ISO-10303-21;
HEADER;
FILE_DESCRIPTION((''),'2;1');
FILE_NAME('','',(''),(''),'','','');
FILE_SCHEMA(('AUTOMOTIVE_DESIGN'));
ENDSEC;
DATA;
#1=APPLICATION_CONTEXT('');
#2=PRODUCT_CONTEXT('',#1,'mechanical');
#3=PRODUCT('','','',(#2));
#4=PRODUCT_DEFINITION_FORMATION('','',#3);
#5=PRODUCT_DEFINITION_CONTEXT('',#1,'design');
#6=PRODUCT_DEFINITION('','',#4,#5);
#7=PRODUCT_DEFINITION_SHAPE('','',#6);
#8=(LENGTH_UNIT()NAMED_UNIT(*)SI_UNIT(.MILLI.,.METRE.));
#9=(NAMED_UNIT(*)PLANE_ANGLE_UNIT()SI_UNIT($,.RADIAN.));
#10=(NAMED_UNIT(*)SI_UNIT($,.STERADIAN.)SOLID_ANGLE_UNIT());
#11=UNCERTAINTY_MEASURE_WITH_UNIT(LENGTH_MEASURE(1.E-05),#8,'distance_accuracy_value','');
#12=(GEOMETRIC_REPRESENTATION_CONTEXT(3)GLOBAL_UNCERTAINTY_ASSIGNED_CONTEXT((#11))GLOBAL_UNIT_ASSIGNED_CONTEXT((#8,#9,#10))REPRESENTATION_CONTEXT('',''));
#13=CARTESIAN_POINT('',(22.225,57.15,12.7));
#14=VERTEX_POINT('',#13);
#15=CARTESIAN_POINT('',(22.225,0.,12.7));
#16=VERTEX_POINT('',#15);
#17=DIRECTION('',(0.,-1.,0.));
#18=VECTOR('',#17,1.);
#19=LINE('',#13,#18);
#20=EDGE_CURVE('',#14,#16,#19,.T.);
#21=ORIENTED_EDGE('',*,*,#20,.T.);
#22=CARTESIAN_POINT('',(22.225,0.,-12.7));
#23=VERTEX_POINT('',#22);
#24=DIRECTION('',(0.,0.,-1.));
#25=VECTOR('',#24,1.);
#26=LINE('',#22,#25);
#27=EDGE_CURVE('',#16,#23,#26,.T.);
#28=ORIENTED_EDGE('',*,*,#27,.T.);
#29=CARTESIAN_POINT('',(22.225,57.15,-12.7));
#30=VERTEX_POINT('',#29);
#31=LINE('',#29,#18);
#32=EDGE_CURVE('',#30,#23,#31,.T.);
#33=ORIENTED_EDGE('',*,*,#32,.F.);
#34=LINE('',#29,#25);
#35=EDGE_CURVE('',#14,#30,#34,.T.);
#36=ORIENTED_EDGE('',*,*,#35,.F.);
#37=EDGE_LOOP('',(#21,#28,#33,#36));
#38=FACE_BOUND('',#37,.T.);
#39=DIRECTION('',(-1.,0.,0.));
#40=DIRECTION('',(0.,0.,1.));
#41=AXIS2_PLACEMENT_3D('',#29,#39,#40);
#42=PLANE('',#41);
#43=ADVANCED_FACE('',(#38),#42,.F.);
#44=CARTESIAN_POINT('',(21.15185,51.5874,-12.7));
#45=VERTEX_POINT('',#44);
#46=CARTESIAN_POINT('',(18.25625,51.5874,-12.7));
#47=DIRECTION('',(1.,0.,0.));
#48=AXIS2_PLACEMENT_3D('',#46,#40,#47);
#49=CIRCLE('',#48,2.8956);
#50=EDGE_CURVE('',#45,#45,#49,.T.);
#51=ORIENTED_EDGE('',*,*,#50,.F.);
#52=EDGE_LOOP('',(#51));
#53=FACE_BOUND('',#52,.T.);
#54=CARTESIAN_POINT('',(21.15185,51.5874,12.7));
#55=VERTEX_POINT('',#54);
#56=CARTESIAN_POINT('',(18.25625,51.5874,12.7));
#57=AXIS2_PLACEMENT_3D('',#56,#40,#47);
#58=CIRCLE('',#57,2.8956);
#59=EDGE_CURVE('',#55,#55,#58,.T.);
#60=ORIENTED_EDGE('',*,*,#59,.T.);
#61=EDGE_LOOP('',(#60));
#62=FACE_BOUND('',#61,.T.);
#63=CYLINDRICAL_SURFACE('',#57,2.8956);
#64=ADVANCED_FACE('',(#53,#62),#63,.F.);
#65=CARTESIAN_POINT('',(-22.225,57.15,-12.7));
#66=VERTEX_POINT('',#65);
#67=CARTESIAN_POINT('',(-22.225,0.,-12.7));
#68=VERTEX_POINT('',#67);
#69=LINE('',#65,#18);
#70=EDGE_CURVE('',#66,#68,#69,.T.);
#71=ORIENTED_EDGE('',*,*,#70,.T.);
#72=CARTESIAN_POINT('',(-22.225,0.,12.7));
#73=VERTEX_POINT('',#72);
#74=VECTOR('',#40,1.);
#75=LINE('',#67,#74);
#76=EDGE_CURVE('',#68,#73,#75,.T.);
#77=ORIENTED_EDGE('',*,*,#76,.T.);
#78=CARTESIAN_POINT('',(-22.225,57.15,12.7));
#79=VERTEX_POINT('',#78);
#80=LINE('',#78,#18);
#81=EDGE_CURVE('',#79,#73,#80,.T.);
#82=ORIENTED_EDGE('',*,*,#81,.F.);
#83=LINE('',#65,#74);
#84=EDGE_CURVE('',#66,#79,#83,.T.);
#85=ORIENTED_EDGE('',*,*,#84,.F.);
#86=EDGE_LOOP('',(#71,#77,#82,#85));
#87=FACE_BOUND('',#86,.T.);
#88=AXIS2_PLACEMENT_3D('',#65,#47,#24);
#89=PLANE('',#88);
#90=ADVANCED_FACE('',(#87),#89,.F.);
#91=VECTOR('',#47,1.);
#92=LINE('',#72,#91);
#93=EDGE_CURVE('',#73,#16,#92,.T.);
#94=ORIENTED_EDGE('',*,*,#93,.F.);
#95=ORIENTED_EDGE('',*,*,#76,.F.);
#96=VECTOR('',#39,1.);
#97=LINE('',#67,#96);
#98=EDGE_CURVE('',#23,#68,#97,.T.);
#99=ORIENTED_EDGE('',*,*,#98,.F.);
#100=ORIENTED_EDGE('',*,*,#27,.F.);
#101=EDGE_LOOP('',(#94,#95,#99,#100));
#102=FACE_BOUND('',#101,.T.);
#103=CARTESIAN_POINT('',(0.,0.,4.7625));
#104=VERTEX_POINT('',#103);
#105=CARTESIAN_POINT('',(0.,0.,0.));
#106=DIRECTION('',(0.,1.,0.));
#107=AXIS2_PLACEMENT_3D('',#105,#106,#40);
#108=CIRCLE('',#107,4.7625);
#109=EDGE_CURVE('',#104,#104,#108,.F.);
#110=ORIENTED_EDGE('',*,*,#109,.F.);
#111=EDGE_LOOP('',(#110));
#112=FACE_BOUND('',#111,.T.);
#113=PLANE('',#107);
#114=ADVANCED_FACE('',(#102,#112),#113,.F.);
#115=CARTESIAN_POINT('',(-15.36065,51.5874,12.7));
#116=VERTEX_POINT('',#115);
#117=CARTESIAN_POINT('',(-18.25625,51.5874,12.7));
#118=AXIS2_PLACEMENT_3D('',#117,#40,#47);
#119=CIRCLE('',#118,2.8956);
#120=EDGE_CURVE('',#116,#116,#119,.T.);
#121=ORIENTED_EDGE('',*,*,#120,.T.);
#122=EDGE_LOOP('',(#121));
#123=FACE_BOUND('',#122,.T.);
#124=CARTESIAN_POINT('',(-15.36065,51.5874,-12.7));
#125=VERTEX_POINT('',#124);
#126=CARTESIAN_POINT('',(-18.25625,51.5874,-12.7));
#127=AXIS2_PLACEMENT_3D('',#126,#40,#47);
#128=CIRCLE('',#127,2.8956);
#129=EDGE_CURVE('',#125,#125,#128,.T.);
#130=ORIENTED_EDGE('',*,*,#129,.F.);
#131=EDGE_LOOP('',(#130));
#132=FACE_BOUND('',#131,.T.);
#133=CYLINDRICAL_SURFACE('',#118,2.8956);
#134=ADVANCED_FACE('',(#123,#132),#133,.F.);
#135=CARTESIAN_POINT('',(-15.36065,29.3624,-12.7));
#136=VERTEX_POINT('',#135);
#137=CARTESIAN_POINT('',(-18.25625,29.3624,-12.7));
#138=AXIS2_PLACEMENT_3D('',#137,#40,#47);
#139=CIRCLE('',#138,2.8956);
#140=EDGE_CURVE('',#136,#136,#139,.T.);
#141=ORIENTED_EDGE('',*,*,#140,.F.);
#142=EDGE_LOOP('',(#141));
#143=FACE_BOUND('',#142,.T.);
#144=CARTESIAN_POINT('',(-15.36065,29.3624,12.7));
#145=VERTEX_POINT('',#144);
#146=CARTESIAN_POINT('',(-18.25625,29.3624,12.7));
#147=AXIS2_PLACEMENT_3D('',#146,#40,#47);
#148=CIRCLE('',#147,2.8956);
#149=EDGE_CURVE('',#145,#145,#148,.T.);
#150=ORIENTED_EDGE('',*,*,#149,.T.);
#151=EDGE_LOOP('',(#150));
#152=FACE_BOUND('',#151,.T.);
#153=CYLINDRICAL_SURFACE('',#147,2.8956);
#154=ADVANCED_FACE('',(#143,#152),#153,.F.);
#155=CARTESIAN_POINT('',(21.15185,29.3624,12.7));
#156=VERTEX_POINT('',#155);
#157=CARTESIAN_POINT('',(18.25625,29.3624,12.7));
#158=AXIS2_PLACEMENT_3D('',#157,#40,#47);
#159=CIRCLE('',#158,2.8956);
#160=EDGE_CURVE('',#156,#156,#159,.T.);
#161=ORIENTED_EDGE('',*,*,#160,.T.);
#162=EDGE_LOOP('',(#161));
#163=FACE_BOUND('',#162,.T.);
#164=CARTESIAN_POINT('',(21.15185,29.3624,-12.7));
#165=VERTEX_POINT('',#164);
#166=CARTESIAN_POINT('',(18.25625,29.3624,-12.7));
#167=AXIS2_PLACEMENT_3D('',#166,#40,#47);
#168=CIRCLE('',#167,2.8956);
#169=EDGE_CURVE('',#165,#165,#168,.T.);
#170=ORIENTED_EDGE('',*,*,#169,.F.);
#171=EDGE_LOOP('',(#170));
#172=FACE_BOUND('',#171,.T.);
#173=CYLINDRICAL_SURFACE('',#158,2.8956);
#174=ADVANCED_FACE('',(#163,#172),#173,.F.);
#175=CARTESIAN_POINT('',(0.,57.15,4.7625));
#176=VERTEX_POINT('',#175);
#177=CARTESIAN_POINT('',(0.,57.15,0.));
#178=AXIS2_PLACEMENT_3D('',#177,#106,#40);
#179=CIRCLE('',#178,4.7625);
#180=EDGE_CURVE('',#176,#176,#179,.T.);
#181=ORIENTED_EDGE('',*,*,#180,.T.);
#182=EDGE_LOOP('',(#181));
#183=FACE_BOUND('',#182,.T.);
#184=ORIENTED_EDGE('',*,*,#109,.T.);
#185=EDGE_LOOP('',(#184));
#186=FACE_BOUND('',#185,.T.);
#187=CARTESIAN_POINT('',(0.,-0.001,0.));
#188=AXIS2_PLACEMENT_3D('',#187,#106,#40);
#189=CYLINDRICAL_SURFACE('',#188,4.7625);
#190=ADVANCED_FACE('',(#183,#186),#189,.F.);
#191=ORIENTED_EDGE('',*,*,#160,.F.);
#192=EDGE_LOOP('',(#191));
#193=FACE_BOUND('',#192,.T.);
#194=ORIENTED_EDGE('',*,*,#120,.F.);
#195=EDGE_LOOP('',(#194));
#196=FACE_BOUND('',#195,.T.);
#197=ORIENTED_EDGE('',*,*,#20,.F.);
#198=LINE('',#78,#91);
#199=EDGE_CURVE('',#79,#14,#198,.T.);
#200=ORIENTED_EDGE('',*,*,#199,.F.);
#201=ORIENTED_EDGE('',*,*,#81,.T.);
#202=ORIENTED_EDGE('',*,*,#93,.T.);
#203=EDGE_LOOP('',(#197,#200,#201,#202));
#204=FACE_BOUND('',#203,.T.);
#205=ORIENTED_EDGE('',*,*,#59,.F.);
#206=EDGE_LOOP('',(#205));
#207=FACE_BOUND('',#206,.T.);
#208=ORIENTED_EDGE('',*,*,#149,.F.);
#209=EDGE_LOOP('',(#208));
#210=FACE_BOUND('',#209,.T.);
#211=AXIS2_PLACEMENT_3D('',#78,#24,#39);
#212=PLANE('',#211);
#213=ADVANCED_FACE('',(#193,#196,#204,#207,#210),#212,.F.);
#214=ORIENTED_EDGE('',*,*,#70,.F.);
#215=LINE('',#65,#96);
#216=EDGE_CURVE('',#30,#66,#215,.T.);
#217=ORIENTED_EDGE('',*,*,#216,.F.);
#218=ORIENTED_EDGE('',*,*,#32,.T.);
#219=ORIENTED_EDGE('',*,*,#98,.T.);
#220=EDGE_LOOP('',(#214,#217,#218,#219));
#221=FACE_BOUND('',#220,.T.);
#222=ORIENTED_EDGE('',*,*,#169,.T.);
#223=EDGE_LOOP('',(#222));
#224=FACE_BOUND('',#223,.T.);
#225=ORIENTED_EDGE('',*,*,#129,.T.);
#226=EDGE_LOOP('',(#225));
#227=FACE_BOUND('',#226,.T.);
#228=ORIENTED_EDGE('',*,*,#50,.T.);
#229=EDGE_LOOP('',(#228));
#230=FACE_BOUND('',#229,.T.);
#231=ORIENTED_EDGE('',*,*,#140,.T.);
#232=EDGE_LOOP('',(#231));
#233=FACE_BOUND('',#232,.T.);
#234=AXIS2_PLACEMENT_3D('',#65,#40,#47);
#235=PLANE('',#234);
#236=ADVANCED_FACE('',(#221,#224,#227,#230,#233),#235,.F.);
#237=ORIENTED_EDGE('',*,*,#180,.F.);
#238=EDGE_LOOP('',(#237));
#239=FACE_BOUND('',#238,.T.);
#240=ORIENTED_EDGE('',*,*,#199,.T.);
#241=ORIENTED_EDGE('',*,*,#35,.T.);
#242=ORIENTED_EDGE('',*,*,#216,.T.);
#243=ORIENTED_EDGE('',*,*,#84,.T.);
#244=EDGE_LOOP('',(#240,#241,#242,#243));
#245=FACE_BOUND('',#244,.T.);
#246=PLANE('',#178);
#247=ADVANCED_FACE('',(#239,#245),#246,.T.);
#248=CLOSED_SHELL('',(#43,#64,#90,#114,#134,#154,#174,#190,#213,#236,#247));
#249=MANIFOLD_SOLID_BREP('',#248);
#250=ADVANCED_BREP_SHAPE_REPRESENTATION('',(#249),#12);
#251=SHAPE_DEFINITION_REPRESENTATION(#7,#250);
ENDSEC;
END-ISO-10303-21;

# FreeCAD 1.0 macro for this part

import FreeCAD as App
import Part
import Sketcher
Q = App.Units.Quantity

doc = App.newDocument("Part")
body = doc.addObject("PartDesign::Body", "Body")

sketch1 = body.newObject("Sketcher::SketchObject", "Sketch")
sketch1.AttachmentSupport = (doc.getObject("XZ_Plane"), [""])
sketch1.MapMode = "FlatFace"
sketch1.addGeometry(Part.LineSegment(App.Vector(-22, -13, 0), App.Vector(-22, 13, 0)), False)
sketch1.addGeometry(Part.LineSegment(App.Vector(-22, 13, 0), App.Vector(22, 13, 0)), False)
sketch1.addGeometry(Part.LineSegment(App.Vector(22, 13, 0), App.Vector(22, -13, 0)), False)
sketch1.addGeometry(Part.LineSegment(App.Vector(22, -13, 0), App.Vector(-22, -13, 0)), False)
sketch1.addConstraint(Sketcher.Constraint("Coincident", 0, 2, 1, 1))
sketch1.addConstraint(Sketcher.Constraint("Coincident", 1, 2, 2, 1))
sketch1.addConstraint(Sketcher.Constraint("Coincident", 2, 2, 3, 1))
sketch1.addConstraint(Sketcher.Constraint("Coincident", 3, 2, 0, 1))
sketch1.addConstraint(Sketcher.Constraint("Vertical", 0))
sketch1.addConstraint(Sketcher.Constraint("Horizontal", 1))
sketch1.addConstraint(Sketcher.Constraint("Vertical", 2))
sketch1.addConstraint(Sketcher.Constraint("Horizontal", 3))
sketch1.addConstraint(Sketcher.Constraint("Symmetric", 0, 2, 2, 2, -1, 1))
sketch1.addConstraint(Sketcher.Constraint("DistanceY", 0, 1, 0, 2, Q("1 in")))
sketch1.addConstraint(Sketcher.Constraint("DistanceX", 1, 1, 1, 2, Q("1.75 in")))
pad1 = body.newObject("PartDesign::Pad", "Pad")
pad1.Profile = sketch1
pad1.Length = Q("2.25 in")
pad1.Reversed = True

sketch2 = body.newObject("Sketcher::SketchObject", "Sketch001")
sketch2.AttachmentSupport = (doc.getObject("XZ_Plane"), [""])
sketch2.MapMode = "FlatFace"
sketch2.AttachmentOffset = App.Placement(App.Vector(0, 0, -2.25 * 25.4), App.Rotation())
sketch2.addGeometry(Part.Circle(App.Vector(0, 0, 0), App.Vector(0, 0, 1), 4.8), False)
sketch2.addConstraint(Sketcher.Constraint("Coincident", 0, 3, -1, 1))
sketch2.addConstraint(Sketcher.Constraint("Diameter", 0, Q("0.375 in")))
pocket1 = body.newObject("PartDesign::Pocket", "Pocket")
pocket1.Profile = sketch2
pocket1.Type = "UpToFirst"
pocket1.Reversed = True

sketch3 = body.newObject("Sketcher::SketchObject", "Sketch002")
sketch3.AttachmentSupport = (doc.getObject("XY_Plane"), [""])
sketch3.MapMode = "FlatFace"
sketch3.AttachmentOffset = App.Placement(App.Vector(0, 0, 0.5 * 25.4), App.Rotation())
sketch3.addGeometry(Part.Circle(App.Vector(-18.3, 51.6, 0), App.Vector(0, 0, 1), 2.9), False)
sketch3.addGeometry(Part.Circle(App.Vector(18.3, 29.4, 0), App.Vector(0, 0, 1), 2.9), False)
sketch3.addGeometry(Part.Circle(App.Vector(-18.3, 29.4, 0), App.Vector(0, 0, 1), 2.9), False)
sketch3.addGeometry(Part.Circle(App.Vector(18.3, 51.6, 0), App.Vector(0, 0, 1), 2.9), False)
sketch3.addConstraint(Sketcher.Constraint("Equal", 0, 1))
sketch3.addConstraint(Sketcher.Constraint("Equal", 1, 2))
sketch3.addConstraint(Sketcher.Constraint("Equal", 2, 3))
sketch3.addConstraint(Sketcher.Constraint("Symmetric", 1, 3, 2, 3, -2))
sketch3.addConstraint(Sketcher.Constraint("Symmetric", 0, 3, 3, 3, -2))
sketch3.addConstraint(Sketcher.Constraint("Vertical", 0, 3, 2, 3))
sketch3.addConstraint(Sketcher.Constraint("Diameter", 0, Q("0.228 in")))
sketch3.addConstraint(Sketcher.Constraint("DistanceX", 0, 3, -1, 1, Q("0.71875 in")))
sketch3.addConstraint(Sketcher.Constraint("DistanceY", -1, 1, 0, 3, Q("2.031 in")))
sketch3.addConstraint(Sketcher.Constraint("DistanceY", -1, 1, 1, 3, Q("1.156 in")))
doc.recompute()
hole = body.newObject("PartDesign::Hole", "Hole")
hole.Profile = sketch3
hole.ThreadType = "None"
hole.Diameter = Q("0.228 in")
hole.DepthType = "ThroughAll"

doc.recompute()
